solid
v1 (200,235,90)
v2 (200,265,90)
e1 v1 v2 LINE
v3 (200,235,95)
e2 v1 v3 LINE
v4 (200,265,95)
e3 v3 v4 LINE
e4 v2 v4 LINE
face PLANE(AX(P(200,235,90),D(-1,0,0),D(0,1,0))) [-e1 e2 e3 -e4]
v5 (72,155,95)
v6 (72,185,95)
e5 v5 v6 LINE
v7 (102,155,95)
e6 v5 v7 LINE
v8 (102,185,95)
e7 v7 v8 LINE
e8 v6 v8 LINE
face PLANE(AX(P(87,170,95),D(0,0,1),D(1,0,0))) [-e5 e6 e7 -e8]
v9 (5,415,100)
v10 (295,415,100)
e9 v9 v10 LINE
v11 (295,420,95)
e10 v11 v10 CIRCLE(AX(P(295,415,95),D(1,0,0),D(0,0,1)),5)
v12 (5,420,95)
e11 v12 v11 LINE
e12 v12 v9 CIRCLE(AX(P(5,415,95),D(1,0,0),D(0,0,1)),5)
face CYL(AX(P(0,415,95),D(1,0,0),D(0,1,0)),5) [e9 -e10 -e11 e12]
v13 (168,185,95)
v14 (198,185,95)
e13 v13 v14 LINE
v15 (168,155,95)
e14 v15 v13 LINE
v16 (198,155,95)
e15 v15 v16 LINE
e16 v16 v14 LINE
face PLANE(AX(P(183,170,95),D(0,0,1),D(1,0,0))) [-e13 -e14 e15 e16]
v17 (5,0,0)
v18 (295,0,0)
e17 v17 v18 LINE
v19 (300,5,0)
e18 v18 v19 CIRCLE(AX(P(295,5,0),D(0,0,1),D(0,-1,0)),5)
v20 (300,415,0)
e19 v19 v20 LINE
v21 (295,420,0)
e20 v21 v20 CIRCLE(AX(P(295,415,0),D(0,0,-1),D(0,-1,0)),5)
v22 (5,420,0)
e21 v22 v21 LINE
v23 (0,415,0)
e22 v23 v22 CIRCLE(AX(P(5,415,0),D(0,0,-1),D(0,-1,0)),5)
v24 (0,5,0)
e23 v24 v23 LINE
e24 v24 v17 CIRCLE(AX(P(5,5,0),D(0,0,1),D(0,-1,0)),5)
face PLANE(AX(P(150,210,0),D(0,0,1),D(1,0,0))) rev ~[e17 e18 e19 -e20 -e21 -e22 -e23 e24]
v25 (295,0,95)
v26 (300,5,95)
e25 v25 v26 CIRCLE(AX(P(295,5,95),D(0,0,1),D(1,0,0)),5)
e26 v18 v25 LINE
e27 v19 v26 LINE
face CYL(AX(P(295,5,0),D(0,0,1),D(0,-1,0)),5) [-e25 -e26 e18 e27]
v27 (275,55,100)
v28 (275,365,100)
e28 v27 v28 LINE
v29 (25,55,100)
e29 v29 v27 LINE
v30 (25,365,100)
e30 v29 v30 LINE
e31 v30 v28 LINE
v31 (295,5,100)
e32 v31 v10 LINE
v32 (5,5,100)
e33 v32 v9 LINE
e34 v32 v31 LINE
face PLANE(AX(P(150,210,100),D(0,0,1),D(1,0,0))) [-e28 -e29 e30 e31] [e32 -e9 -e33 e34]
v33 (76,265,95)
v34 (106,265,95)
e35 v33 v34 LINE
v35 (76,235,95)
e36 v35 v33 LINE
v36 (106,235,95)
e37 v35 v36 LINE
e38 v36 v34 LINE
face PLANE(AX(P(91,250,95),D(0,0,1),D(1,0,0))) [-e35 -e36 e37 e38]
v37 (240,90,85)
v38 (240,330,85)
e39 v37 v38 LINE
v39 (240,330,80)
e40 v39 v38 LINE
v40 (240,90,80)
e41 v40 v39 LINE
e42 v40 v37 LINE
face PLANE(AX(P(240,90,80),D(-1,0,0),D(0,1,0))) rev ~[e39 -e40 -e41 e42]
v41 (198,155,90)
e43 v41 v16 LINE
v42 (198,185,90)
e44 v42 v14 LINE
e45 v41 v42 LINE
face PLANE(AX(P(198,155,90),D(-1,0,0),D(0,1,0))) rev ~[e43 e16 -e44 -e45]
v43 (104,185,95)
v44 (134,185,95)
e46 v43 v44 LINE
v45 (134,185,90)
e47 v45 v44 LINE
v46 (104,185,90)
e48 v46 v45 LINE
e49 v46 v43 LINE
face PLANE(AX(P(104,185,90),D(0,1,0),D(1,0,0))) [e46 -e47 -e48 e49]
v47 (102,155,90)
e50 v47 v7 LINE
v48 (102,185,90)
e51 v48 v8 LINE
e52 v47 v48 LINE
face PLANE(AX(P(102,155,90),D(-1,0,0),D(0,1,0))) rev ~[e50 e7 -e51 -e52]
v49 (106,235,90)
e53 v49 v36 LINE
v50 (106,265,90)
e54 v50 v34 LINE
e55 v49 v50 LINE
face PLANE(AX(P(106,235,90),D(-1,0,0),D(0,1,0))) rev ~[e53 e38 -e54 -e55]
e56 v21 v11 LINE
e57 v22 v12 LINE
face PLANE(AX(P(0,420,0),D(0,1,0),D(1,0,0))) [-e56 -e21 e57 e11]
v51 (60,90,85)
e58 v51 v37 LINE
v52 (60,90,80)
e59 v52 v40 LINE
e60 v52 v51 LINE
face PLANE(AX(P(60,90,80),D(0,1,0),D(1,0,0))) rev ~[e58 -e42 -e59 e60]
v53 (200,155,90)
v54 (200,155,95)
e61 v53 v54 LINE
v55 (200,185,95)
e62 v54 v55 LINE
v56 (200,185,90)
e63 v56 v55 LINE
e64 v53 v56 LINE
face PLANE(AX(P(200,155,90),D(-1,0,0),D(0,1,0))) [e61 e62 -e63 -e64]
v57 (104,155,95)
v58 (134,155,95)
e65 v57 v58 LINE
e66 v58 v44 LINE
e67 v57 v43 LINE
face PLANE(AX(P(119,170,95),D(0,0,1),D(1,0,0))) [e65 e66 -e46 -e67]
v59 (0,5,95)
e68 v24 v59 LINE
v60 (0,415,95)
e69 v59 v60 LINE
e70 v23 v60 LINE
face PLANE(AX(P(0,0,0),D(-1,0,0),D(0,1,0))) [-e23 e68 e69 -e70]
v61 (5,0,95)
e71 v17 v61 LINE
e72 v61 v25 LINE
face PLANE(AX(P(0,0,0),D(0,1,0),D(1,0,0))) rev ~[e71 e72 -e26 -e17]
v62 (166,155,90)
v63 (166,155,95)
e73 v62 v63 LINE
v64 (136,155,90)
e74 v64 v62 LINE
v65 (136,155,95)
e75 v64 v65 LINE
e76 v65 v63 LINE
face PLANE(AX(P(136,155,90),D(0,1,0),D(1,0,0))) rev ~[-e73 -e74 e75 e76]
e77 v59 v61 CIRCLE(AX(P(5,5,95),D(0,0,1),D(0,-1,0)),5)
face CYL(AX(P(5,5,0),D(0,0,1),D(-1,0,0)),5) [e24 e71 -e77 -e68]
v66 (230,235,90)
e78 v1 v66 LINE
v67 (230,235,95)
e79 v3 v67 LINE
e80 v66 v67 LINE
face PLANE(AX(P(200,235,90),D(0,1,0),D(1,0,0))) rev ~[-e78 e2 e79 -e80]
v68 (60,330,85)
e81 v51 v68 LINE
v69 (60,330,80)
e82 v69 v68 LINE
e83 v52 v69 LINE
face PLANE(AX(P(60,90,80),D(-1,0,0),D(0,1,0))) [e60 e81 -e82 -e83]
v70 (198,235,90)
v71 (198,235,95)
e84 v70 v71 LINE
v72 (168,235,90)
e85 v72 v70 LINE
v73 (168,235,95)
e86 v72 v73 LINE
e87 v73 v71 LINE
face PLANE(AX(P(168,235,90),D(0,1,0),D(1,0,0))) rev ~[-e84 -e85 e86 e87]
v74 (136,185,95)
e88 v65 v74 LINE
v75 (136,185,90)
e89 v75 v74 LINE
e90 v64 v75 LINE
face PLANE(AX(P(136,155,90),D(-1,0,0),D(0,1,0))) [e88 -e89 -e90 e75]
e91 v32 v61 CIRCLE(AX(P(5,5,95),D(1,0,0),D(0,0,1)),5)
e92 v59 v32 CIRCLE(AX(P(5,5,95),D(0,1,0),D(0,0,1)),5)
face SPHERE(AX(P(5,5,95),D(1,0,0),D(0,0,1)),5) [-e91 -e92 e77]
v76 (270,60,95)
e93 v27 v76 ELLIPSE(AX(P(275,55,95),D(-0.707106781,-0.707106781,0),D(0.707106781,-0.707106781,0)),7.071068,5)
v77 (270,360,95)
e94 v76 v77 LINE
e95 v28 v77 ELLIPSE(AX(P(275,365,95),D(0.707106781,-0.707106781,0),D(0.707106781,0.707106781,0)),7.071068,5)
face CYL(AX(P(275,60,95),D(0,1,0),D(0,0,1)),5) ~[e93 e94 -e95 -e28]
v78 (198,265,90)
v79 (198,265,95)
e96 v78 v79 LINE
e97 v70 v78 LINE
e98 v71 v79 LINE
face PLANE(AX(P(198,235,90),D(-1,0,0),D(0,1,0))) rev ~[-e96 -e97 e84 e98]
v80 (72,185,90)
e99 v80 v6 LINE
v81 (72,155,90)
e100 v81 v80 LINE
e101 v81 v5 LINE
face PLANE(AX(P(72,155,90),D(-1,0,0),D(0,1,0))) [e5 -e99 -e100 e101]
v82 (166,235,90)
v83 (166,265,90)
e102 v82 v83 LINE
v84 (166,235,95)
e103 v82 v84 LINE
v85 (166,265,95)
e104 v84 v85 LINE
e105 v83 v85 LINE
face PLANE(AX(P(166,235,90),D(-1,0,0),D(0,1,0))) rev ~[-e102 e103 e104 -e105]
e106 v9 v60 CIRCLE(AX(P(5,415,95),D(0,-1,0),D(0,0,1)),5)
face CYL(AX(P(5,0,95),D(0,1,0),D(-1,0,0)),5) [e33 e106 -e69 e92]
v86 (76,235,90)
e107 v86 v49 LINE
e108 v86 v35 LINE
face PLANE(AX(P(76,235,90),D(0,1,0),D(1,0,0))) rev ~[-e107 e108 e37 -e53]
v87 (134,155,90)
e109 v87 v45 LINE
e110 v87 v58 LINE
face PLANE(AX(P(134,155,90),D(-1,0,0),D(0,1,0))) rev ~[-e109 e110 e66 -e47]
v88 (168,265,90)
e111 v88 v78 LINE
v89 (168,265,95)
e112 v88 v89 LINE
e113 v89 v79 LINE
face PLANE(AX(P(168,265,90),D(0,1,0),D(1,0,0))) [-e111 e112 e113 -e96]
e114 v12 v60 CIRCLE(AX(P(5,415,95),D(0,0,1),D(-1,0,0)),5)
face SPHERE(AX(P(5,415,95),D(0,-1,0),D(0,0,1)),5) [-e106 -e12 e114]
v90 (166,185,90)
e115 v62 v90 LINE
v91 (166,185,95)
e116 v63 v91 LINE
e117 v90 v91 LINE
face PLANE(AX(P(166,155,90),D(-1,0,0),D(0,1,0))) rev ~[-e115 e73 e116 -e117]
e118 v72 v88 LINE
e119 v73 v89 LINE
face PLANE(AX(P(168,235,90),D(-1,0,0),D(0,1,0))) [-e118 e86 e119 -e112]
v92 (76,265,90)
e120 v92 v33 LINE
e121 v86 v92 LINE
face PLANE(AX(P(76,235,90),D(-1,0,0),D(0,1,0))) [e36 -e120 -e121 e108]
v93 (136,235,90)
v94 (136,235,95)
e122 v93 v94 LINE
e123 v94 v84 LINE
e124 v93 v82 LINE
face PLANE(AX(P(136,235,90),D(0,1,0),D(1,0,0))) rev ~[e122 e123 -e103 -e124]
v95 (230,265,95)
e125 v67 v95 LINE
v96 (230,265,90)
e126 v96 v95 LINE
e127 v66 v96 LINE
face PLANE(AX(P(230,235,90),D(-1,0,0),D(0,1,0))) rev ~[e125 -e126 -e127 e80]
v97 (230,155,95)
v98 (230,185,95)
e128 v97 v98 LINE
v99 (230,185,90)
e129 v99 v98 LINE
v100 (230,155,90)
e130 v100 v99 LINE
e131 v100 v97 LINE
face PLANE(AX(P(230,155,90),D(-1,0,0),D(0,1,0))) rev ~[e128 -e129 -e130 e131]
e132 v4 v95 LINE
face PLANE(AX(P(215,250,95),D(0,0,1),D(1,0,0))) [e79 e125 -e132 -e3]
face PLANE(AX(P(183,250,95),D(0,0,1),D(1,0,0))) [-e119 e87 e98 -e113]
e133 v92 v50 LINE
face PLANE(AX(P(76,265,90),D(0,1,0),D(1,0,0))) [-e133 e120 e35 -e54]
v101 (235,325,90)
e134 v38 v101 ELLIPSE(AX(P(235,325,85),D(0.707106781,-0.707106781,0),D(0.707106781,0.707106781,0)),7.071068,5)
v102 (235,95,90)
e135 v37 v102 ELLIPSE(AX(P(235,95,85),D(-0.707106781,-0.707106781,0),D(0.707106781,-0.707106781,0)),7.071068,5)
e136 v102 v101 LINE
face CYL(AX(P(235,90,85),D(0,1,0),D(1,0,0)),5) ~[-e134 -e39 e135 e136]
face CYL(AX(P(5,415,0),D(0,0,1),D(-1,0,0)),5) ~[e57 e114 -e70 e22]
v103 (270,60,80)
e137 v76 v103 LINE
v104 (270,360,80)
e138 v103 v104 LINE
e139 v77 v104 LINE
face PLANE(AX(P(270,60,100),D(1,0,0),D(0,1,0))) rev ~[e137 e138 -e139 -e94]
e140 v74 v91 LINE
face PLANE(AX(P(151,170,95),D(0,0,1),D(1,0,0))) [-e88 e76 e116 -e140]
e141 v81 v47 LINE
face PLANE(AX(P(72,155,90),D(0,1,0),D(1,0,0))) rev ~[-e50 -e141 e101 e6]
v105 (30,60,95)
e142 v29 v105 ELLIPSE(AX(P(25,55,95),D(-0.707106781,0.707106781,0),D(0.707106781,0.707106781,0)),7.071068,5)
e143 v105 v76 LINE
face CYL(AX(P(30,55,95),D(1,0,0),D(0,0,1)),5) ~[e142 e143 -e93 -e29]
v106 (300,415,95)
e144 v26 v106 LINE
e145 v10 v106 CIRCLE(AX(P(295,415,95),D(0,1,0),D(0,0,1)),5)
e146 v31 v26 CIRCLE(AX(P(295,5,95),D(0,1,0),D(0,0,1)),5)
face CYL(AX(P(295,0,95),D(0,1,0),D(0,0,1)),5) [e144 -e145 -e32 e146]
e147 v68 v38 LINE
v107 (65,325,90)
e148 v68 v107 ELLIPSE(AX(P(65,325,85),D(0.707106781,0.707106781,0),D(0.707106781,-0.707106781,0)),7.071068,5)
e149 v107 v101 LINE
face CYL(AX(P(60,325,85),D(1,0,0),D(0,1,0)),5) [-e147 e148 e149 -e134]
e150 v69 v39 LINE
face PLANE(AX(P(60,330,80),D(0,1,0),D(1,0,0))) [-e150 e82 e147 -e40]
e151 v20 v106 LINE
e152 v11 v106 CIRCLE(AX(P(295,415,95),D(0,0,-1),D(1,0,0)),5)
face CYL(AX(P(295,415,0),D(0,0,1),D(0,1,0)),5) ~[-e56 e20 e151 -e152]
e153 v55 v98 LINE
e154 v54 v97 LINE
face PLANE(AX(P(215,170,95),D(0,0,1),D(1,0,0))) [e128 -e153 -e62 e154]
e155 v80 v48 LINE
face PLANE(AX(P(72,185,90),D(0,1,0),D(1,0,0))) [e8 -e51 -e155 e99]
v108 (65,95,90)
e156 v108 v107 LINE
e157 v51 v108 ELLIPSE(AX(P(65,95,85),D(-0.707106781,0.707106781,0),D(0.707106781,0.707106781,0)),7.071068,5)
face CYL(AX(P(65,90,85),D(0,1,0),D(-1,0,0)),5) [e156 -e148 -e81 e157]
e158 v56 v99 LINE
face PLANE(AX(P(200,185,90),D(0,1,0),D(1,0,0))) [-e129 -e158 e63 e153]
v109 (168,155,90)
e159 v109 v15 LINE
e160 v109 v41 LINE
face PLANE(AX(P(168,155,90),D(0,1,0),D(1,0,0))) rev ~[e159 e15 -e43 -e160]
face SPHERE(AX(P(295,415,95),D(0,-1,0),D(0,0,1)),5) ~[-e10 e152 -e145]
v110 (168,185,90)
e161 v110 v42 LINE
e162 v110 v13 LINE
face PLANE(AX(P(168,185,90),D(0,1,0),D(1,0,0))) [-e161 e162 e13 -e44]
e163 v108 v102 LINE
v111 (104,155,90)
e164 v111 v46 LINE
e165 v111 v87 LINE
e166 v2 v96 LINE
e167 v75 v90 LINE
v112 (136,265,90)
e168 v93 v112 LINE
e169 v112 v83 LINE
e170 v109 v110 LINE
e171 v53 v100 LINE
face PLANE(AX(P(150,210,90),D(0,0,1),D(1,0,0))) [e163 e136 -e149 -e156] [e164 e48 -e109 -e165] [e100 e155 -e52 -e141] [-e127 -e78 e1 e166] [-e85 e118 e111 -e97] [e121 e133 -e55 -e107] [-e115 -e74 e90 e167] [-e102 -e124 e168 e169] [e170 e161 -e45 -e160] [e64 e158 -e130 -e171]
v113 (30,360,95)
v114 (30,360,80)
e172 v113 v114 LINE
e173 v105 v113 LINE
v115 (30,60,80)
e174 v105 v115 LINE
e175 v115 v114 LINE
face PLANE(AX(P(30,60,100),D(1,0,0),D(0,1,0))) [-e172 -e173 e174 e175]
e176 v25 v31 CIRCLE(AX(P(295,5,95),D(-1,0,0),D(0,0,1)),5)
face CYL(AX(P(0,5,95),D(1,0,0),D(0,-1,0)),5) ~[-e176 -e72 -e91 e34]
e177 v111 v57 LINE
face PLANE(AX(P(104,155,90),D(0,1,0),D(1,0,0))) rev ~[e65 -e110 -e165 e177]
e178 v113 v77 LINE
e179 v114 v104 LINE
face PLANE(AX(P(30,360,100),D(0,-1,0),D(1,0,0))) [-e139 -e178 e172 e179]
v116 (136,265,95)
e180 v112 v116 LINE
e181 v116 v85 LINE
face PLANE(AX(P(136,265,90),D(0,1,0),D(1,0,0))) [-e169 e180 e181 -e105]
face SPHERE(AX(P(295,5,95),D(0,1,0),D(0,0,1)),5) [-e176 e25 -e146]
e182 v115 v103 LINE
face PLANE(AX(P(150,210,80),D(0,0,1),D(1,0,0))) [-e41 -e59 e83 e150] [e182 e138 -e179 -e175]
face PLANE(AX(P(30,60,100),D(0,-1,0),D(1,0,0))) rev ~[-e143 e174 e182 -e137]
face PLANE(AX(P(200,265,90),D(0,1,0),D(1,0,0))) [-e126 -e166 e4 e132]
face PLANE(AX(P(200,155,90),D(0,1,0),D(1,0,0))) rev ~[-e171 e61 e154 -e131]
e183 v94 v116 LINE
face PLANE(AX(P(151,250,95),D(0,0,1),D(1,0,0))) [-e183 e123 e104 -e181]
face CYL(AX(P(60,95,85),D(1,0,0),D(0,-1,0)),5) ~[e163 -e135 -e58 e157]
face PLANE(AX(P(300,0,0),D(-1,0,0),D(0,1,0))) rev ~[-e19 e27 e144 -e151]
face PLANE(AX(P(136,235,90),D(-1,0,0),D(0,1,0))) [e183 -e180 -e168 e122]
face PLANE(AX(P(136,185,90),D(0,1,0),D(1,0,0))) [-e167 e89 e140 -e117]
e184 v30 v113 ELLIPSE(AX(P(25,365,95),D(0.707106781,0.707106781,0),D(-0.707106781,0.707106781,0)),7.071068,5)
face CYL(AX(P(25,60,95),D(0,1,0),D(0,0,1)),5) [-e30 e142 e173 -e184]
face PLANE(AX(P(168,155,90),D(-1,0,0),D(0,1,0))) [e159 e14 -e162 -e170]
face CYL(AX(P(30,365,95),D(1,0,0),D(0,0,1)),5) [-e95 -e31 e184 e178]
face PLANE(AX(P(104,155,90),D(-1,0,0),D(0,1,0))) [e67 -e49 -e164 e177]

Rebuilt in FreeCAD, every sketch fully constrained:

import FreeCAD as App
import Part
import Sketcher
Q = App.Units.Quantity


def edges_at(feature, points):
    """Names of the edges that pass closest to the given points."""
    edges = feature.Shape.Edges
    near = lambda p: min(range(len(edges)), key=lambda i: edges[i].distToShape(Part.Vertex(*p))[0])
    return sorted({f"Edge{near(p) + 1}" for p in points})


def add_polygon(sketch, points):
    """Adds a closed chain of lines whose ends are joined by coincident constraints."""
    first, n = sketch.GeometryCount, len(points)
    for a, b in zip(points, points[1:] + points[:1]):
        sketch.addGeometry(Part.LineSegment(App.Vector(*a, 0), App.Vector(*b, 0)), False)
    for i in range(n):
        sketch.addConstraint(Sketcher.Constraint("Coincident", first + i, 2, first + (i + 1) % n, 1))

doc = App.newDocument("Part")
body = doc.addObject("PartDesign::Body", "Body")

# Sketch on XY plane
sketch1 = body.newObject("Sketcher::SketchObject", "Sketch")
sketch1.AttachmentSupport = (doc.getObject("XY_Plane"), [""])
sketch1.MapMode = "FlatFace"
add_polygon(sketch1, [(0, 420), (0, 0), (300, 0), (300, 420)])  # lines 0-3
sketch1.addConstraint([
    Sketcher.Constraint("Vertical", 0),
    Sketcher.Constraint("Horizontal", 1),
    Sketcher.Constraint("Vertical", 2),
    Sketcher.Constraint("Horizontal", 3),
    Sketcher.Constraint("Coincident", 0, 2, -1, 1),
    Sketcher.Constraint("DistanceX", 1, 1, 1, 2, Q("300 mm")),
    Sketcher.Constraint("DistanceY", 0, 2, 0, 1, Q("420 mm")),
])
pad1 = body.newObject("PartDesign::Pad", "Pad")
pad1.Profile = sketch1
pad1.Length = 100

# Sketch on XY plane
sketch2 = body.newObject("Sketcher::SketchObject", "Sketch001")
sketch2.AttachmentSupport = (doc.getObject("XY_Plane"), [""])
sketch2.MapMode = "FlatFace"
sketch2.AttachmentOffset = App.Placement(App.Vector(0, 0, 100), App.Rotation())
add_polygon(sketch2, [(30, 360), (30, 60), (270, 60), (270, 360)])  # lines 0-3
sketch2.addConstraint([
    Sketcher.Constraint("Vertical", 0),
    Sketcher.Constraint("Horizontal", 1),
    Sketcher.Constraint("Vertical", 2),
    Sketcher.Constraint("Horizontal", 3),
    Sketcher.Constraint("DistanceX", 1, 1, 1, 2, Q("240 mm")),
    Sketcher.Constraint("DistanceY", 0, 2, 0, 1, Q("300 mm")),
    Sketcher.Constraint("DistanceX", -1, 1, 0, 2, Q("30 mm")),
    Sketcher.Constraint("DistanceY", -1, 1, 0, 2, Q("60 mm")),
])
pocket1 = body.newObject("PartDesign::Pocket", "Pocket")
pocket1.Profile = sketch2
pocket1.Length = 20

# Sketch on XY plane
sketch3 = body.newObject("Sketcher::SketchObject", "Sketch002")
sketch3.AttachmentSupport = (doc.getObject("XY_Plane"), [""])
sketch3.MapMode = "FlatFace"
sketch3.AttachmentOffset = App.Placement(App.Vector(0, 0, 80), App.Rotation())
add_polygon(sketch3, [(60, 330), (60, 90), (240, 90), (240, 330)])  # lines 0-3
sketch3.addConstraint([
    Sketcher.Constraint("Vertical", 0),
    Sketcher.Constraint("Horizontal", 1),
    Sketcher.Constraint("Vertical", 2),
    Sketcher.Constraint("Horizontal", 3),
    Sketcher.Constraint("DistanceX", 1, 1, 1, 2, Q("180 mm")),
    Sketcher.Constraint("DistanceY", 0, 2, 0, 1, Q("240 mm")),
    Sketcher.Constraint("DistanceX", -1, 1, 0, 2, Q("60 mm")),
    Sketcher.Constraint("DistanceY", -1, 1, 0, 2, Q("90 mm")),
])
pad2 = body.newObject("PartDesign::Pad", "Pad001")
pad2.Profile = sketch3
pad2.Length = 10

# Sketch on XY plane
sketch4 = body.newObject("Sketcher::SketchObject", "Sketch003")
sketch4.AttachmentSupport = (doc.getObject("XY_Plane"), [""])
sketch4.MapMode = "FlatFace"
sketch4.AttachmentOffset = App.Placement(App.Vector(0, 0, 90), App.Rotation())
add_polygon(sketch4, [(76, 265), (76, 235), (106, 235), (106, 265)])  # lines 0-3
add_polygon(sketch4, [(136, 265), (136, 235), (166, 235), (166, 265)])  # lines 4-7
add_polygon(sketch4, [(168, 265), (168, 235), (198, 235), (198, 265)])  # lines 8-11
add_polygon(sketch4, [(200, 265), (200, 235), (230, 235), (230, 265)])  # lines 12-15
add_polygon(sketch4, [(72, 185), (72, 155), (102, 155), (102, 185)])  # lines 16-19
add_polygon(sketch4, [(104, 185), (104, 155), (134, 155), (134, 185)])  # lines 20-23
add_polygon(sketch4, [(136, 185), (136, 155), (166, 155), (166, 185)])  # lines 24-27
add_polygon(sketch4, [(168, 185), (168, 155), (198, 155), (198, 185)])  # lines 28-31
add_polygon(sketch4, [(200, 185), (200, 155), (230, 155), (230, 185)])  # lines 32-35
sketch4.addConstraint([
    Sketcher.Constraint("Vertical", 0),
    Sketcher.Constraint("Horizontal", 1),
    Sketcher.Constraint("Vertical", 2),
    Sketcher.Constraint("Horizontal", 3),
    Sketcher.Constraint("Vertical", 4),
    Sketcher.Constraint("Horizontal", 5),
    Sketcher.Constraint("Vertical", 6),
    Sketcher.Constraint("Horizontal", 7),
    Sketcher.Constraint("Vertical", 8),
    Sketcher.Constraint("Horizontal", 9),
    Sketcher.Constraint("Vertical", 10),
    Sketcher.Constraint("Horizontal", 11),
    Sketcher.Constraint("Vertical", 12),
    Sketcher.Constraint("Horizontal", 13),
    Sketcher.Constraint("Vertical", 14),
    Sketcher.Constraint("Horizontal", 15),
    Sketcher.Constraint("Vertical", 16),
    Sketcher.Constraint("Horizontal", 17),
    Sketcher.Constraint("Vertical", 18),
    Sketcher.Constraint("Horizontal", 19),
    Sketcher.Constraint("Vertical", 20),
    Sketcher.Constraint("Horizontal", 21),
    Sketcher.Constraint("Vertical", 22),
    Sketcher.Constraint("Horizontal", 23),
    Sketcher.Constraint("Vertical", 24),
    Sketcher.Constraint("Horizontal", 25),
    Sketcher.Constraint("Vertical", 26),
    Sketcher.Constraint("Horizontal", 27),
    Sketcher.Constraint("Vertical", 28),
    Sketcher.Constraint("Horizontal", 29),
    Sketcher.Constraint("Vertical", 30),
    Sketcher.Constraint("Horizontal", 31),
    Sketcher.Constraint("Vertical", 32),
    Sketcher.Constraint("Horizontal", 33),
    Sketcher.Constraint("Vertical", 34),
    Sketcher.Constraint("Horizontal", 35),
    Sketcher.Constraint("Horizontal", 1, 2, 4, 2),
    Sketcher.Constraint("Horizontal", 3, 2, 6, 2),
    Sketcher.Constraint("Horizontal", 5, 2, 8, 2),
    Sketcher.Constraint("Horizontal", 7, 2, 10, 2),
    Sketcher.Constraint("Horizontal", 9, 2, 12, 2),
    Sketcher.Constraint("Horizontal", 11, 2, 14, 2),
    Sketcher.Constraint("Horizontal", 17, 2, 20, 2),
    Sketcher.Constraint("Horizontal", 19, 2, 22, 2),
    Sketcher.Constraint("Horizontal", 21, 2, 24, 2),
    Sketcher.Constraint("Horizontal", 23, 2, 26, 2),
    Sketcher.Constraint("Horizontal", 25, 2, 28, 2),
    Sketcher.Constraint("Horizontal", 27, 2, 30, 2),
    Sketcher.Constraint("Horizontal", 29, 2, 32, 2),
    Sketcher.Constraint("Horizontal", 31, 2, 34, 2),
    Sketcher.Constraint("Vertical", 7, 2, 24, 2),
    Sketcher.Constraint("Vertical", 6, 2, 25, 2),
    Sketcher.Constraint("Vertical", 11, 2, 28, 2),
    Sketcher.Constraint("Vertical", 10, 2, 29, 2),
    Sketcher.Constraint("Vertical", 15, 2, 32, 2),
    Sketcher.Constraint("Vertical", 14, 2, 33, 2),
    Sketcher.Constraint("Equal", 3, 5),
    Sketcher.Constraint("Equal", 7, 9),
    Sketcher.Constraint("Equal", 11, 13),
    Sketcher.Constraint("Equal", 15, 17),
    Sketcher.Constraint("Equal", 19, 21),
    Sketcher.Constraint("Equal", 35, 0),
    Sketcher.Constraint("Equal", 14, 16),
    Sketcher.Constraint("DistanceX", 1, 1, 1, 2, Q("30 mm")),
    Sketcher.Constraint("DistanceX", -1, 1, 0, 2, Q("76 mm")),
    Sketcher.Constraint("DistanceY", -1, 1, 0, 2, Q("235 mm")),
    Sketcher.Constraint("DistanceX", -1, 1, 4, 2, Q("136 mm")),
    Sketcher.Constraint("DistanceX", -1, 1, 8, 2, Q("168 mm")),
    Sketcher.Constraint("DistanceX", -1, 1, 12, 2, Q("200 mm")),
    Sketcher.Constraint("DistanceX", -1, 1, 16, 2, Q("72 mm")),
    Sketcher.Constraint("DistanceY", -1, 1, 16, 2, Q("155 mm")),
    Sketcher.Constraint("DistanceX", -1, 1, 20, 2, Q("104 mm")),
])
pad3 = body.newObject("PartDesign::Pad", "Pad002")
pad3.Profile = sketch4
pad3.Length = 5
doc.recompute()

fillet = body.newObject("PartDesign::Fillet", "Fillet")
fillet.Base = (pad3, edges_at(pad3, [
    (300, 210, 100),
    (150, 0, 100),
    (30, 210, 100),
    (150, 60, 100),
    (270, 210, 100),
    (150, 360, 100),
    (0, 210, 100),
    (150, 420, 100),
    (0, 0, 50),
    (300, 0, 50),
    (300, 420, 50),
    (0, 420, 50),
]))
fillet.Radius = 5
doc.recompute()

fillet2 = body.newObject("PartDesign::Fillet", "Fillet001")
fillet2.Base = (fillet, edges_at(fillet, [
    (150, 330, 90),
    (60, 210, 90),
    (150, 90, 90),
    (240, 210, 90),
]))
fillet2.Radius = 5

doc.recompute()
